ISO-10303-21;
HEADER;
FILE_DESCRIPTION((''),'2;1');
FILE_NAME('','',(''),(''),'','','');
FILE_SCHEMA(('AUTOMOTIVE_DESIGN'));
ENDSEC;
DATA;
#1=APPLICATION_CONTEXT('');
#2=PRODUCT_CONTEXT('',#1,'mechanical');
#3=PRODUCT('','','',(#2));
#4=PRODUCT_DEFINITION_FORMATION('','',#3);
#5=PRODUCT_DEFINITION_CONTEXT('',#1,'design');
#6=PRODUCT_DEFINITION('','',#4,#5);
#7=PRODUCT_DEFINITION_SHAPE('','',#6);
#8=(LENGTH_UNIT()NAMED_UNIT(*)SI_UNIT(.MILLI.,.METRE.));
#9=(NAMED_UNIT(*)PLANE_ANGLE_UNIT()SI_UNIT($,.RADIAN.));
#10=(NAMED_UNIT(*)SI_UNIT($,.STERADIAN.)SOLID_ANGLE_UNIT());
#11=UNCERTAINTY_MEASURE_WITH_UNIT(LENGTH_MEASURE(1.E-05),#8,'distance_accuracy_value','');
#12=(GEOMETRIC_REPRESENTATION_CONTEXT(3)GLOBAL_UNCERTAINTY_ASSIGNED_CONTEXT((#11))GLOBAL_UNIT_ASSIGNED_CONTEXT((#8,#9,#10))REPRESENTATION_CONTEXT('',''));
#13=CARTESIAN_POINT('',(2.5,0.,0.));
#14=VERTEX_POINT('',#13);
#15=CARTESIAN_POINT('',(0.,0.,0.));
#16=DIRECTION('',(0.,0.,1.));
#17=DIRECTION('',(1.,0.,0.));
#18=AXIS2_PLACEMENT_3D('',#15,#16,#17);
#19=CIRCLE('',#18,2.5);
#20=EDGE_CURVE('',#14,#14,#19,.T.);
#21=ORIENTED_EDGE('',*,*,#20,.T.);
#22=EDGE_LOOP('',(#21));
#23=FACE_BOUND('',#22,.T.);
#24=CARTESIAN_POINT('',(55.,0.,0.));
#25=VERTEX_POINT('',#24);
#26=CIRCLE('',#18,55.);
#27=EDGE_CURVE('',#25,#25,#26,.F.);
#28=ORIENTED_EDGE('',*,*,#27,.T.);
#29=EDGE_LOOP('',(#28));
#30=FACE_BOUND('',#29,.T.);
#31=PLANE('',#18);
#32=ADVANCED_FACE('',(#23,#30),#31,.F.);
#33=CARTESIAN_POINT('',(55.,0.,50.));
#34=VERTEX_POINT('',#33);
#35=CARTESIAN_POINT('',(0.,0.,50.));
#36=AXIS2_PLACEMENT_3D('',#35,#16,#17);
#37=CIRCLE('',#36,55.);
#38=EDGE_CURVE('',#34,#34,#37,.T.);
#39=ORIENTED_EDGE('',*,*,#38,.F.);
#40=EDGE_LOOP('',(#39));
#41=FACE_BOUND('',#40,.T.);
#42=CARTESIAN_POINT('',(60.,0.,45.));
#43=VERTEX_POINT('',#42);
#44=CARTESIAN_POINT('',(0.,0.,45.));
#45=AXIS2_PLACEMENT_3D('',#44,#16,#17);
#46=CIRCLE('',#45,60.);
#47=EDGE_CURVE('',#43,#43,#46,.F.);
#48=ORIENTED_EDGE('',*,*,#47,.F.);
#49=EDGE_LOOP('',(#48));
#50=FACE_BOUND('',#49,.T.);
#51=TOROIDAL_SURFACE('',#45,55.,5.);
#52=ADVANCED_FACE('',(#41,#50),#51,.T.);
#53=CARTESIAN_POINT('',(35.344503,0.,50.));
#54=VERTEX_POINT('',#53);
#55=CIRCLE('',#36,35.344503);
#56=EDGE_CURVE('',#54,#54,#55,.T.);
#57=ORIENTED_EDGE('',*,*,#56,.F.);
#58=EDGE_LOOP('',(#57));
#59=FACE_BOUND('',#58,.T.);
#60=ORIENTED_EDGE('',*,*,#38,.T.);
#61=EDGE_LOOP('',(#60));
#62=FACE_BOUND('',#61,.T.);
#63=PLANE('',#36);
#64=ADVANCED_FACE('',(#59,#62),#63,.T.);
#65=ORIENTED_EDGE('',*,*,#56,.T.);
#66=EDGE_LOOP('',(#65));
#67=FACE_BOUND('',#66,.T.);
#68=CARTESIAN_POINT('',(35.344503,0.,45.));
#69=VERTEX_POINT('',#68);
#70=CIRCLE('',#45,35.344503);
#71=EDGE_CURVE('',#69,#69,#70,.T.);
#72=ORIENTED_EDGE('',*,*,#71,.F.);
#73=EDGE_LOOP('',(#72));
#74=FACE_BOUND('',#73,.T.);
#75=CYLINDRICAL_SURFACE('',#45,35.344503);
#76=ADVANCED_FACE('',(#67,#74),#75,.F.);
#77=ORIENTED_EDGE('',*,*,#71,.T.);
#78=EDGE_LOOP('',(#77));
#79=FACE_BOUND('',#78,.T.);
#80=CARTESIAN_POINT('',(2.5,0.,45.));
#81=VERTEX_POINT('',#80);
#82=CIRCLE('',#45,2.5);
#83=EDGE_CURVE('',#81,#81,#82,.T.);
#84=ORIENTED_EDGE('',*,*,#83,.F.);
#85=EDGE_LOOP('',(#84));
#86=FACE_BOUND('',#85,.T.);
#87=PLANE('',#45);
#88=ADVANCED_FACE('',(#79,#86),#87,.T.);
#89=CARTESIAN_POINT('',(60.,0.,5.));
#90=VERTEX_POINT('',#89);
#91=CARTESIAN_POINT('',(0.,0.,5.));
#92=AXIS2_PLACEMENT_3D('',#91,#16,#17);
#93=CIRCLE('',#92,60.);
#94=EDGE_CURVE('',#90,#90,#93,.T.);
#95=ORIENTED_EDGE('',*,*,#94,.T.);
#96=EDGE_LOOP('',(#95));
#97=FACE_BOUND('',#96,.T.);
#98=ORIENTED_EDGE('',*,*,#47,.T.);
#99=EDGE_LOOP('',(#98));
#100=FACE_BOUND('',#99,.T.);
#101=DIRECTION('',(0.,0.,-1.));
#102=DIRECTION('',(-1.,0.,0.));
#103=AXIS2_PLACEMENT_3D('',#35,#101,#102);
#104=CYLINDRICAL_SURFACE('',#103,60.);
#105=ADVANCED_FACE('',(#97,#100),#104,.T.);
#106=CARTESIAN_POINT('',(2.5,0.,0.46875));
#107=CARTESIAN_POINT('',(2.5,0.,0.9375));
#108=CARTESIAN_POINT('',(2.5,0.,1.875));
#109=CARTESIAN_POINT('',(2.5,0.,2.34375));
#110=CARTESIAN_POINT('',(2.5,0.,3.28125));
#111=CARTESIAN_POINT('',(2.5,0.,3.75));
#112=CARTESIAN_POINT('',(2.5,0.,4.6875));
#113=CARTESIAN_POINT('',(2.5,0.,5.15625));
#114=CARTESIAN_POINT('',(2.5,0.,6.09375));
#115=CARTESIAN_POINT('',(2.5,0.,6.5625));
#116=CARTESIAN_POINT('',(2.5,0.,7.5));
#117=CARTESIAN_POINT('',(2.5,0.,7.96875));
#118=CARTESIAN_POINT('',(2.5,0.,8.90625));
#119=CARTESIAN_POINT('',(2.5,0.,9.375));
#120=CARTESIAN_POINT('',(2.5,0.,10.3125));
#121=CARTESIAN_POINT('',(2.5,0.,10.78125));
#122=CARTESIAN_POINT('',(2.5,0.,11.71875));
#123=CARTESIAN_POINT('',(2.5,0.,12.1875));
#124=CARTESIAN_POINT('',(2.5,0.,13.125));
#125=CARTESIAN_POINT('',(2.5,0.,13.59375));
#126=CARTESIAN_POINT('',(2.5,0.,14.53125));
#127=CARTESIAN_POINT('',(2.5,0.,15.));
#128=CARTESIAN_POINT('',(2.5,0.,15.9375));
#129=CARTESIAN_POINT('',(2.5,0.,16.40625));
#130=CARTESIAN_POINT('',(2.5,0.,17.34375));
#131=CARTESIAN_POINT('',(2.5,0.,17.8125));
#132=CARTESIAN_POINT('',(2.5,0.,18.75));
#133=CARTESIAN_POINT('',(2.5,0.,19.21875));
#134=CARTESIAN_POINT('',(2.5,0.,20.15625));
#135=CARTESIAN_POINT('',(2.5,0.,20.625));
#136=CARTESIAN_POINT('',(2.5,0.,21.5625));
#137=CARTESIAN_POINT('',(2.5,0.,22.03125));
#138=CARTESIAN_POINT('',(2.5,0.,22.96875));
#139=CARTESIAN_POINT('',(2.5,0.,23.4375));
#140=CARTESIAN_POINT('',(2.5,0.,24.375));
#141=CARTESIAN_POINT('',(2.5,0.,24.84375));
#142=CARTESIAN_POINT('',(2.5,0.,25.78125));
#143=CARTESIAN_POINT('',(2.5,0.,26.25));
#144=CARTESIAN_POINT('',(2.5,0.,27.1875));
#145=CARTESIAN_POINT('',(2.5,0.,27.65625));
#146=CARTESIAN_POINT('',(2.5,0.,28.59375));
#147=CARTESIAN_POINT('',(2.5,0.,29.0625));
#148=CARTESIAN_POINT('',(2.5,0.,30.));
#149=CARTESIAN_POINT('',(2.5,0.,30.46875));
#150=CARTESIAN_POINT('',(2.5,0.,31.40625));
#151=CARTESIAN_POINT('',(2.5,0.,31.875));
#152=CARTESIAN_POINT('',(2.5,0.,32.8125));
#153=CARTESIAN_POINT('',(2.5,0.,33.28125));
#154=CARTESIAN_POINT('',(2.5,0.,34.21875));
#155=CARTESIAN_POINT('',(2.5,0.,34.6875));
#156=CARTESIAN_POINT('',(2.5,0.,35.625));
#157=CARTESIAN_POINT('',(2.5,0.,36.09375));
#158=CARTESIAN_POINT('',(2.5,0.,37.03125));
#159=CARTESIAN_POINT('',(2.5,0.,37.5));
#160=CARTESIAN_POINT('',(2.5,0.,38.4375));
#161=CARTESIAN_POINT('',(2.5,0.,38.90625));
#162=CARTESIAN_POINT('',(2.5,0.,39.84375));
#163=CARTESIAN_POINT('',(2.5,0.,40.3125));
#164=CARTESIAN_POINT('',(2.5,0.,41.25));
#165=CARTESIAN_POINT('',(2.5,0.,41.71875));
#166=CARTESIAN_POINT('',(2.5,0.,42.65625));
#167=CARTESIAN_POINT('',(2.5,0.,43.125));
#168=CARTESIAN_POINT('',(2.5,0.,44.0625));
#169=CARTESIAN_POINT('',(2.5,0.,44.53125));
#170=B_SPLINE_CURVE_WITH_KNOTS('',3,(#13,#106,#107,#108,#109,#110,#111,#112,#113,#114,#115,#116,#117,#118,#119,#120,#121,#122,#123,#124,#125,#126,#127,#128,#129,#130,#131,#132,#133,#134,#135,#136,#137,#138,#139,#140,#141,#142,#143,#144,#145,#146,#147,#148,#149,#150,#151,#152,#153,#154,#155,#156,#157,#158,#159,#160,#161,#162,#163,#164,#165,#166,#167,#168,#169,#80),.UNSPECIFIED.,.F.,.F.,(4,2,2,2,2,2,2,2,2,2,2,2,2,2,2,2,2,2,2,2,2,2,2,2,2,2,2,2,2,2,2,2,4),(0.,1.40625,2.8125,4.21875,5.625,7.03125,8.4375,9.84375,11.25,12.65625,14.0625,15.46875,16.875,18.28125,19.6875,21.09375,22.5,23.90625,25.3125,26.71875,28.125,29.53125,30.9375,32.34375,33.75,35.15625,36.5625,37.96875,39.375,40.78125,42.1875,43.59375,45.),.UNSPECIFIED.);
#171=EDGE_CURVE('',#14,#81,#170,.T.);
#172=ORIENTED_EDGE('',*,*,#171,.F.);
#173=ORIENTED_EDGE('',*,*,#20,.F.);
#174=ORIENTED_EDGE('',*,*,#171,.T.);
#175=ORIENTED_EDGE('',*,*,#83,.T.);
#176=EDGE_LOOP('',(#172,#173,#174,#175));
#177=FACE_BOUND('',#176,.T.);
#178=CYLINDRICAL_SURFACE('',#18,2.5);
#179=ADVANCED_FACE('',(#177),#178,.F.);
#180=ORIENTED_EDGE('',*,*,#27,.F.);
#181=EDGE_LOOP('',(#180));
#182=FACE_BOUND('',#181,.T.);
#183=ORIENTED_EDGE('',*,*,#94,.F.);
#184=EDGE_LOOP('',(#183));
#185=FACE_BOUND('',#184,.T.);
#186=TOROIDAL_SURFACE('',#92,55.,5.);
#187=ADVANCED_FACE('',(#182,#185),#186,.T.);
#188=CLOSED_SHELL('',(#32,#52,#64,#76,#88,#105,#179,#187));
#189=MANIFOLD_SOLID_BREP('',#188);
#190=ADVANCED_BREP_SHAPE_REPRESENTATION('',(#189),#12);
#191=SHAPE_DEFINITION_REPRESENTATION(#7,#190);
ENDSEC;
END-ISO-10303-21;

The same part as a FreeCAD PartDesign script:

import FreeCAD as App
import Part
import Sketcher
Q = App.Units.Quantity


def edges_at(feature, points):
    """Names of the edges that pass closest to the given points."""
    edges = feature.Shape.Edges
    near = lambda p: min(range(len(edges)), key=lambda i: edges[i].distToShape(Part.Vertex(*p))[0])
    return sorted({f"Edge{near(p) + 1}" for p in points})

doc = App.newDocument("Part")
body = doc.addObject("PartDesign::Body", "Body")

# Sketch on XY plane
sketch1 = body.newObject("Sketcher::SketchObject", "Sketch")
sketch1.AttachmentSupport = (doc.getObject("XY_Plane"), [""])
sketch1.MapMode = "FlatFace"
sketch1.addGeometry(Part.Circle(App.Vector(0, 0, 0), App.Vector(0, 0, 1), 60), False)
sketch1.addConstraint([
    Sketcher.Constraint("Coincident", 0, 3, -1, 1),
    Sketcher.Constraint("Diameter", 0, Q("120 mm")),
])
pad1 = body.newObject("PartDesign::Pad", "Pad")
pad1.Profile = sketch1
pad1.Length = 50
doc.recompute()

fillet = body.newObject("PartDesign::Fillet", "Fillet")
fillet.Base = (pad1, edges_at(pad1, [(-60, 0, 0), (-60, 0, 50)]))
fillet.Radius = 5

# Sketch on XY plane
sketch2 = body.newObject("Sketcher::SketchObject", "Sketch001")
sketch2.AttachmentSupport = (doc.getObject("XY_Plane"), [""])
sketch2.MapMode = "FlatFace"
sketch2.AttachmentOffset = App.Placement(App.Vector(0, 0, 50), App.Rotation())
sketch2.addGeometry(Part.Circle(App.Vector(0, 0, 0), App.Vector(0, 0, 1), 35), False)
sketch2.addConstraint([
    Sketcher.Constraint("Coincident", 0, 3, -1, 1),
    Sketcher.Constraint("Diameter", 0, Q("70.689005 mm")),
])
pocket1 = body.newObject("PartDesign::Pocket", "Pocket")
pocket1.Profile = sketch2
pocket1.Length = 5

# Sketch on XY plane
sketch3 = body.newObject("Sketcher::SketchObject", "Sketch002")
sketch3.AttachmentSupport = (doc.getObject("XY_Plane"), [""])
sketch3.MapMode = "FlatFace"
sketch3.AttachmentOffset = App.Placement(App.Vector(0, 0, 45), App.Rotation())
sketch3.addGeometry(Part.Circle(App.Vector(0, 0, 0), App.Vector(0, 0, 1), 2.5), False)
sketch3.addConstraint([
    Sketcher.Constraint("Coincident", 0, 3, -1, 1),
    Sketcher.Constraint("Diameter", 0, Q("5 mm")),
])
pocket2 = body.newObject("PartDesign::Pocket", "Pocket001")
pocket2.Profile = sketch3
pocket2.Type = "ThroughAll"

doc.recompute()
